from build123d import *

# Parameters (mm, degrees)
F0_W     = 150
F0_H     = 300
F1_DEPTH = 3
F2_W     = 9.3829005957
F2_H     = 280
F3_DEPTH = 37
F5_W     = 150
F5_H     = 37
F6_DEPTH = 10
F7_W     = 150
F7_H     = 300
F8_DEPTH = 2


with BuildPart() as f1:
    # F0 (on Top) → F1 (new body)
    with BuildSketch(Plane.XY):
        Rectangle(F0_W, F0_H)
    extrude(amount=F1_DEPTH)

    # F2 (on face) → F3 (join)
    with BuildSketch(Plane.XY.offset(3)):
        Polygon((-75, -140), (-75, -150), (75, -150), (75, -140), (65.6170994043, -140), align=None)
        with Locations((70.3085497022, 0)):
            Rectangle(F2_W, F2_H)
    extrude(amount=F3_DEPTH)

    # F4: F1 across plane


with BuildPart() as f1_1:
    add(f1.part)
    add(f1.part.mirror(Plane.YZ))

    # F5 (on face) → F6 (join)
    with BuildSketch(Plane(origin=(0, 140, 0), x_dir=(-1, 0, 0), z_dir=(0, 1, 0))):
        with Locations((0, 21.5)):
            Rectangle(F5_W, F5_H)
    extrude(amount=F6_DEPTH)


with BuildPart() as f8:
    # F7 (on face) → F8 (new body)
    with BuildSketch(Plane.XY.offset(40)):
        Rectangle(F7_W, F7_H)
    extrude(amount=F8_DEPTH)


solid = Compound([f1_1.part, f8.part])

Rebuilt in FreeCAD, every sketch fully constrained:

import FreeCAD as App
import Part
import Sketcher

V = App.Vector
Q = App.Units.Quantity


def add_polygon(sketch, points):
    """Adds a closed chain of lines whose ends are joined by coincident constraints."""
    first, n = sketch.GeometryCount, len(points)
    for a, b in zip(points, points[1:] + points[:1]):
        sketch.addGeometry(Part.LineSegment(App.Vector(*a, 0), App.Vector(*b, 0)), False)
    for i in range(n):
        sketch.addConstraint(Sketcher.Constraint("Coincident", first + i, 2, first + (i + 1) % n, 1))

doc = App.newDocument("Part")
body = doc.addObject("PartDesign::Body", "Body")

# Sketch on XY plane
sketch1 = doc.addObject("Sketcher::SketchObject", "Sketch")
body.addObject(sketch1)
sketch1.AttachmentSupport = (doc.XY_Plane, [""])
sketch1.MapMode = "FlatFace"
add_polygon(sketch1, [(-75, 150), (-75, -150), (75, -150), (75, 150)])  # lines 0-3
sketch1.addConstraint(Sketcher.Constraint("Vertical", 0))
sketch1.addConstraint(Sketcher.Constraint("Horizontal", 1))
sketch1.addConstraint(Sketcher.Constraint("Vertical", 2))
sketch1.addConstraint(Sketcher.Constraint("Horizontal", 3))
sketch1.addConstraint(Sketcher.Constraint("Symmetric", 0, 2, 2, 2, -1, 1))
sketch1.addConstraint(Sketcher.Constraint("DistanceX", 1, 1, 1, 2, Q("150 mm")))
sketch1.addConstraint(Sketcher.Constraint("DistanceY", 0, 2, 0, 1, Q("300 mm")))
pad1 = doc.addObject("PartDesign::Pad", "Pad")
body.addObject(pad1)
pad1.Profile = sketch1
pad1.Length = 3

# Sketch on XY plane
sketch2 = doc.addObject("Sketcher::SketchObject", "Sketch001")
body.addObject(sketch2)
sketch2.AttachmentSupport = (doc.XY_Plane, [""])
sketch2.MapMode = "FlatFace"
sketch2.AttachmentOffset = App.Placement(V(0, 0, 3), App.Rotation())
add_polygon(sketch2, [(-75, -140), (-75, -150), (75, -150), (75, 140), (65.617099, 140), (65.617099, -140)])  # lines 0-5
sketch2.addConstraint(Sketcher.Constraint("Vertical", 0))
sketch2.addConstraint(Sketcher.Constraint("Horizontal", 1))
sketch2.addConstraint(Sketcher.Constraint("Vertical", 2))
sketch2.addConstraint(Sketcher.Constraint("Horizontal", 3))
sketch2.addConstraint(Sketcher.Constraint("Vertical", 4))
sketch2.addConstraint(Sketcher.Constraint("Horizontal", 5))
sketch2.addConstraint(Sketcher.Constraint("Symmetric", 2, 2, 5, 2, -1, 1))
sketch2.addConstraint(Sketcher.Constraint("DistanceX", 1, 1, 1, 2, Q("150 mm")))
sketch2.addConstraint(Sketcher.Constraint("DistanceY", 0, 2, 0, 1, Q("10 mm")))
sketch2.addConstraint(Sketcher.Constraint("DistanceY", 2, 1, 2, 2, Q("290 mm")))
sketch2.addConstraint(Sketcher.Constraint("DistanceX", 3, 2, 3, 1, Q("9.382901 mm")))
pad2 = doc.addObject("PartDesign::Pad", "Pad001")
body.addObject(pad2)
pad2.Profile = sketch2
pad2.Length = 37
body2 = doc.addObject("PartDesign::Body", "Body001")
doc.recompute()

body2.BaseFeature = body
doc.recompute()

mirroring = doc.addObject("Part::Mirroring", "Mirroring")
mirroring.Source = body
mirroring.Base = V(0, 0, 0)
mirroring.Normal = V(1, 0, 0)
body3 = doc.addObject("PartDesign::Body", "Body002")
body3.BaseFeature = mirroring
boolean = doc.addObject("PartDesign::Boolean", "Boolean")
body2.addObject(boolean)
boolean.Type = "Fuse"
boolean.addObjects([body3])
doc.recompute()

# Sketch on XZ plane
sketch3 = doc.addObject("Sketcher::SketchObject", "Sketch002")
body2.addObject(sketch3)
sketch3.AttachmentSupport = (doc.getObject("XZ_Plane001"), [""])
sketch3.MapMode = "FlatFace"
sketch3.AttachmentOffset = App.Placement(V(0, 0, -140), App.Rotation())
add_polygon(sketch3, [(75, 40), (75, 3), (-75, 3), (-75, 40)])  # lines 0-3
sketch3.addConstraint(Sketcher.Constraint("Vertical", 0))
sketch3.addConstraint(Sketcher.Constraint("Horizontal", 1))
sketch3.addConstraint(Sketcher.Constraint("Vertical", 2))
sketch3.addConstraint(Sketcher.Constraint("Horizontal", 3))
sketch3.addConstraint(Sketcher.Constraint("DistanceX", 1, 2, 1, 1, Q("150 mm")))
sketch3.addConstraint(Sketcher.Constraint("DistanceY", 0, 2, 0, 1, Q("37 mm")))
sketch3.addConstraint(Sketcher.Constraint("DistanceX", -1, 1, 0, 2, Q("75 mm")))
sketch3.addConstraint(Sketcher.Constraint("DistanceY", -1, 1, 0, 2, Q("3 mm")))
pad3 = doc.addObject("PartDesign::Pad", "Pad002")
body2.addObject(pad3)
pad3.Profile = sketch3
pad3.Length = 10
pad3.Reversed = True
body4 = doc.addObject("PartDesign::Body", "Body003")

# Sketch on XY plane
sketch4 = doc.addObject("Sketcher::SketchObject", "Sketch003")
body4.addObject(sketch4)
sketch4.AttachmentSupport = (doc.getObject("XY_Plane003"), [""])
sketch4.MapMode = "FlatFace"
sketch4.AttachmentOffset = App.Placement(V(0, 0, 40), App.Rotation())
add_polygon(sketch4, [(-75, 150), (-75, -150), (75, -150), (75, 150)])  # lines 0-3
sketch4.addConstraint(Sketcher.Constraint("Vertical", 0))
sketch4.addConstraint(Sketcher.Constraint("Horizontal", 1))
sketch4.addConstraint(Sketcher.Constraint("Vertical", 2))
sketch4.addConstraint(Sketcher.Constraint("Horizontal", 3))
sketch4.addConstraint(Sketcher.Constraint("Symmetric", 0, 2, 2, 2, -1, 1))
sketch4.addConstraint(Sketcher.Constraint("DistanceX", 1, 1, 1, 2, Q("150 mm")))
sketch4.addConstraint(Sketcher.Constraint("DistanceY", 0, 2, 0, 1, Q("300 mm")))
pad4 = doc.addObject("PartDesign::Pad", "Pad003")
body4.addObject(pad4)
pad4.Profile = sketch4
pad4.Length = 2
mirroring.Visibility = False

doc.recompute()
